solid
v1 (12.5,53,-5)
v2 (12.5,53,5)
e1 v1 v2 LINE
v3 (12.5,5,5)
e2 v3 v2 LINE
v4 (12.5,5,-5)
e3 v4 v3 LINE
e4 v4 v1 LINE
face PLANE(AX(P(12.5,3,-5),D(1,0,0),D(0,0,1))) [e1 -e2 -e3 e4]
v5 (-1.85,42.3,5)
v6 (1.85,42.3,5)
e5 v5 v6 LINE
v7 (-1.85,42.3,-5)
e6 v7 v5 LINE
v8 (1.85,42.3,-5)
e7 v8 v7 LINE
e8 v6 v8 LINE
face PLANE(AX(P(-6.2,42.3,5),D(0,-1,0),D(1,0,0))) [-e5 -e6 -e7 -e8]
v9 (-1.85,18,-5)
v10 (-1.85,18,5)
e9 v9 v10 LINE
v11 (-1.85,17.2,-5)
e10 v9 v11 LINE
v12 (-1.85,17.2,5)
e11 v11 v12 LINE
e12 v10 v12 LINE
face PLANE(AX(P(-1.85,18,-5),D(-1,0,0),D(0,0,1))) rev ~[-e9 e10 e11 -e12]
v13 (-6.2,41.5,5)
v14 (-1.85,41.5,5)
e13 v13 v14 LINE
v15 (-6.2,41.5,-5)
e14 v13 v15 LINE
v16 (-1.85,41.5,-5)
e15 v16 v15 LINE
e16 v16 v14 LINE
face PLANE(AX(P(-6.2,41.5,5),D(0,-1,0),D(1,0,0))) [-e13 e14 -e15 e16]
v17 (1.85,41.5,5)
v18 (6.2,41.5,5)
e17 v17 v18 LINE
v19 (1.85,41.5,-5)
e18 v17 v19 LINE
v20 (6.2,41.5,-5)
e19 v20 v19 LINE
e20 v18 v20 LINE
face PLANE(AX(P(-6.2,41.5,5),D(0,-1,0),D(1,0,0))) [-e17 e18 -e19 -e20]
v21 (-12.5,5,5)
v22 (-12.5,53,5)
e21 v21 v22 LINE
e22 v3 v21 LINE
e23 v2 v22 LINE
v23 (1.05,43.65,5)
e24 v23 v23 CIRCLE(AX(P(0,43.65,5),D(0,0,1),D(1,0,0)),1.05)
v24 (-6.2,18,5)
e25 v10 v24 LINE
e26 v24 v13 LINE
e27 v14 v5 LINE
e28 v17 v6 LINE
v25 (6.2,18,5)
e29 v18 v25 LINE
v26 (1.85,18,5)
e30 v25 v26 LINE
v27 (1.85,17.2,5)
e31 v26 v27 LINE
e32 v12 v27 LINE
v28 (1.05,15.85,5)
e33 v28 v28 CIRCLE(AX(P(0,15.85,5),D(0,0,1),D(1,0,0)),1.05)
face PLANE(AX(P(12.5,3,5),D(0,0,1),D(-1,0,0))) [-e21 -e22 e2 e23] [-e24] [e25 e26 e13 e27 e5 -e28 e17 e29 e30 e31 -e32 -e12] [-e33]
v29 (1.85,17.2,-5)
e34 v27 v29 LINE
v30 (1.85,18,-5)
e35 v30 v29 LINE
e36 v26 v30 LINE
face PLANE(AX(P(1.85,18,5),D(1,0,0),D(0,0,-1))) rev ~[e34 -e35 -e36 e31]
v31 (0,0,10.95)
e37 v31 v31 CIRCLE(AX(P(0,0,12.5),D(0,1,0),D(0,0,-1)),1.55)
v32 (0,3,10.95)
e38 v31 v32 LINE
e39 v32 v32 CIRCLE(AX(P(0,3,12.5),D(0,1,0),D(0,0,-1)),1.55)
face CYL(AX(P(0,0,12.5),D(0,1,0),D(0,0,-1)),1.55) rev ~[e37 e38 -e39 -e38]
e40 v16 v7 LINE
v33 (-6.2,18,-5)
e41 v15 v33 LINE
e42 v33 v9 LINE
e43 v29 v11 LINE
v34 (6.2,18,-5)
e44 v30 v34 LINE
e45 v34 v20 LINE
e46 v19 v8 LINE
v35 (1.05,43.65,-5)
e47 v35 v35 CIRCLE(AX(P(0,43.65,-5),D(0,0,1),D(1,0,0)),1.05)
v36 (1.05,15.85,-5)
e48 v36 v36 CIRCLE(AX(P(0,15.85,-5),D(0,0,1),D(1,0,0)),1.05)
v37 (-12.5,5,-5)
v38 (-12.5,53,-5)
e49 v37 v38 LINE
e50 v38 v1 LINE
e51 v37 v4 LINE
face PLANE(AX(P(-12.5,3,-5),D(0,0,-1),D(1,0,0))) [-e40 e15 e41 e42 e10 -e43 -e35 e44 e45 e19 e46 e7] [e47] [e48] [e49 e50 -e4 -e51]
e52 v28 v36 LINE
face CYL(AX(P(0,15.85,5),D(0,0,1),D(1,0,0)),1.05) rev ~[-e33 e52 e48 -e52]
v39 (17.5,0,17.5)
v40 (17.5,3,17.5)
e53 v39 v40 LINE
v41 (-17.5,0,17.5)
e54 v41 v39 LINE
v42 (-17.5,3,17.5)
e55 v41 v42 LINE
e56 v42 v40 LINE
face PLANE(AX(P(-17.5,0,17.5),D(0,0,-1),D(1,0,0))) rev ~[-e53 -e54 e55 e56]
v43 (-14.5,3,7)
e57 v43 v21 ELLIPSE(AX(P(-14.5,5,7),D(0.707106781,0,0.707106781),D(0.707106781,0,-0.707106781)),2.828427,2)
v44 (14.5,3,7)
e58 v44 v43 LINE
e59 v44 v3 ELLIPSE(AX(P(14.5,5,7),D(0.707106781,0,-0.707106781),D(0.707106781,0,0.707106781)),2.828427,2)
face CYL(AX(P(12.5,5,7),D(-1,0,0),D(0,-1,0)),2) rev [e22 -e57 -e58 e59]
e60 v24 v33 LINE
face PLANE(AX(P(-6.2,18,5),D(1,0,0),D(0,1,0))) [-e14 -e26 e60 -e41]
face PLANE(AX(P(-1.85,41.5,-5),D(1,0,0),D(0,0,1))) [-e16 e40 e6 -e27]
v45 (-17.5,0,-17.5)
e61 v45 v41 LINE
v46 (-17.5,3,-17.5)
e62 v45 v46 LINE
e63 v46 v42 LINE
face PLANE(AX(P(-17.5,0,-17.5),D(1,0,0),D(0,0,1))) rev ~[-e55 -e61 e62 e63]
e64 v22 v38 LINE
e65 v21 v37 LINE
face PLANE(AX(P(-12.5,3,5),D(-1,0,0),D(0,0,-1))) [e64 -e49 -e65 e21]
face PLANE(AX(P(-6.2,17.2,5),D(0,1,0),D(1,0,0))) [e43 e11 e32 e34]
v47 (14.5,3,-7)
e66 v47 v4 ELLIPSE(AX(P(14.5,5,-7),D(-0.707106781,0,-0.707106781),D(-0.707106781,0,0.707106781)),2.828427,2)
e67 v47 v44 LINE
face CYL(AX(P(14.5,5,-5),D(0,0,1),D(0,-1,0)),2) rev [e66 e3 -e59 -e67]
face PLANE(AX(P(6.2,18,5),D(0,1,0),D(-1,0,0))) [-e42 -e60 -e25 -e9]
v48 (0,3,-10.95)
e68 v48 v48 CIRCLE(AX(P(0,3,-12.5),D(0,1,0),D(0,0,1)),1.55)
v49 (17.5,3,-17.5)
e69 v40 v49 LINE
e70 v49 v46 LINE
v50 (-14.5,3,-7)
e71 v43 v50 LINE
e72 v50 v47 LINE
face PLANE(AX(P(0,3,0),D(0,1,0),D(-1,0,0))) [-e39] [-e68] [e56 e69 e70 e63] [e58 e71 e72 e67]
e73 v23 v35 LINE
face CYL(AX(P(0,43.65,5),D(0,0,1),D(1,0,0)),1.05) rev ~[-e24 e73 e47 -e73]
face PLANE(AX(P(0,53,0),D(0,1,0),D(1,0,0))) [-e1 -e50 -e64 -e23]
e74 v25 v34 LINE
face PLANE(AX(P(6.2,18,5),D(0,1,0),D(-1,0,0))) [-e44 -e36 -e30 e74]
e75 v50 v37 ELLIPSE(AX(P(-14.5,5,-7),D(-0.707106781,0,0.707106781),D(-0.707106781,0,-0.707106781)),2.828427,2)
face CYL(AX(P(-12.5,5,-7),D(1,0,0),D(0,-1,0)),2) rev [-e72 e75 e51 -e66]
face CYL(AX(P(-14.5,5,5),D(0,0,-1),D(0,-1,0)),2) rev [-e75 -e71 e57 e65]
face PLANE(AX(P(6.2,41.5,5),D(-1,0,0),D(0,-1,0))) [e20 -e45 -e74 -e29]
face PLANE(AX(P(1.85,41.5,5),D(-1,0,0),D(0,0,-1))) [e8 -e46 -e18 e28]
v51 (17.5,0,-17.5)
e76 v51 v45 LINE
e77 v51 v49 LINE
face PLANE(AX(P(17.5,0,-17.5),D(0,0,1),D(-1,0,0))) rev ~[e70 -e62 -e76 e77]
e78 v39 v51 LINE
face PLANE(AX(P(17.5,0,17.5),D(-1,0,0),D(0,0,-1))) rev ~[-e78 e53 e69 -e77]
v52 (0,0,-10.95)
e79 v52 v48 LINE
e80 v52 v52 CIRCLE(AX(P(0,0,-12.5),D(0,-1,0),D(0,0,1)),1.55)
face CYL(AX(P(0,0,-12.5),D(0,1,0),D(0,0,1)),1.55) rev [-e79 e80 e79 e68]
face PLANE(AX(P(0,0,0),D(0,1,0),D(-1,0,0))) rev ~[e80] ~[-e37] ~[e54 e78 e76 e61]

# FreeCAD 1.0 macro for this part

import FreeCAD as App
import Part
import Sketcher

V = App.Vector


def edges_at(feature, points):
    """Names of the edges that pass closest to the given points."""
    edges = feature.Shape.Edges
    near = lambda p: min(range(len(edges)), key=lambda i: edges[i].distToShape(Part.Vertex(*p))[0])
    return sorted({f"Edge{near(p) + 1}" for p in points})

doc = App.newDocument("Part")
body = doc.addObject("PartDesign::Body", "Body")

# Sketch on XZ plane
sketch1 = body.newObject("Sketcher::SketchObject", "Sketch")
sketch1.AttachmentSupport = (doc.getObject("XZ_Plane"), [""])
sketch1.MapMode = "FlatFace"
sketch1.addGeometry(Part.LineSegment(V(18, 18, 0), V(18, -18, 0)), False)
sketch1.addGeometry(Part.LineSegment(V(18, -18, 0), V(-18, -18, 0)), False)
sketch1.addGeometry(Part.LineSegment(V(-18, -18, 0), V(-18, 18, 0)), False)
sketch1.addGeometry(Part.LineSegment(V(-18, 18, 0), V(18, 18, 0)), False)
sketch1.addConstraint(Sketcher.Constraint("Coincident", 0, 2, 1, 1))
sketch1.addConstraint(Sketcher.Constraint("Coincident", 1, 2, 2, 1))
sketch1.addConstraint(Sketcher.Constraint("Coincident", 2, 2, 3, 1))
sketch1.addConstraint(Sketcher.Constraint("Coincident", 3, 2, 0, 1))
sketch1.addConstraint(Sketcher.Constraint("Vertical", 0))
sketch1.addConstraint(Sketcher.Constraint("Horizontal", 1))
sketch1.addConstraint(Sketcher.Constraint("Vertical", 2))
sketch1.addConstraint(Sketcher.Constraint("Horizontal", 3))
sketch1.addConstraint(Sketcher.Constraint("Symmetric", 0, 2, 2, 2, -1, 1))
sketch1.addConstraint(Sketcher.Constraint("Equal", 3, 0))
sketch1.addConstraint(Sketcher.Constraint("DistanceX", 1, 2, 1, 1, 35.0))
pad1 = body.newObject("PartDesign::Pad", "Pad")
pad1.Profile = sketch1
pad1.Length = 3
pad1.Reversed = True

# Sketch on XZ plane
sketch2 = body.newObject("Sketcher::SketchObject", "Sketch001")
sketch2.AttachmentSupport = (doc.getObject("XZ_Plane"), [""])
sketch2.MapMode = "FlatFace"
sketch2.AttachmentOffset = App.Placement(V(0, 0, -3), App.Rotation())
sketch2.addGeometry(Part.LineSegment(V(12, -5, 0), V(-12, -5, 0)), False)
sketch2.addGeometry(Part.LineSegment(V(-12, -5, 0), V(-12, 5, 0)), False)
sketch2.addGeometry(Part.LineSegment(V(-12, 5, 0), V(12, 5, 0)), False)
sketch2.addGeometry(Part.LineSegment(V(12, 5, 0), V(12, -5, 0)), False)
sketch2.addConstraint(Sketcher.Constraint("Coincident", 0, 2, 1, 1))
sketch2.addConstraint(Sketcher.Constraint("Coincident", 1, 2, 2, 1))
sketch2.addConstraint(Sketcher.Constraint("Coincident", 2, 2, 3, 1))
sketch2.addConstraint(Sketcher.Constraint("Coincident", 3, 2, 0, 1))
sketch2.addConstraint(Sketcher.Constraint("Horizontal", 0))
sketch2.addConstraint(Sketcher.Constraint("Vertical", 1))
sketch2.addConstraint(Sketcher.Constraint("Horizontal", 2))
sketch2.addConstraint(Sketcher.Constraint("Vertical", 3))
sketch2.addConstraint(Sketcher.Constraint("Symmetric", 0, 2, 2, 2, -1, 1))
sketch2.addConstraint(Sketcher.Constraint("DistanceX", 0, 2, 0, 1, 25.0))
sketch2.addConstraint(Sketcher.Constraint("DistanceY", 1, 1, 1, 2, 10.0))
pad2 = body.newObject("PartDesign::Pad", "Pad001")
pad2.Profile = sketch2
pad2.Length = 50
pad2.Reversed = True
doc.recompute()

fillet = body.newObject("PartDesign::Fillet", "Fillet")
fillet.Base = (pad2, edges_at(pad2, [
    (-12.5, 3, 0),
    (12.5, 3, 0),
    (0, 3, 5),
    (0, 3, -5),
]))
fillet.Radius = 2

# Sketch on XY plane
sketch3 = body.newObject("Sketcher::SketchObject", "Sketch002")
sketch3.AttachmentSupport = (doc.getObject("XY_Plane"), [""])
sketch3.MapMode = "FlatFace"
sketch3.AttachmentOffset = App.Placement(V(0, 0, 5), App.Rotation())
sketch3.addGeometry(Part.LineSegment(V(6, 42, 0), V(-6, 42, 0)), False)
sketch3.addGeometry(Part.LineSegment(V(-6, 42, 0), V(-6, 18, 0)), False)
sketch3.addGeometry(Part.LineSegment(V(-6, 18, 0), V(6, 18, 0)), False)
sketch3.addGeometry(Part.LineSegment(V(6, 18, 0), V(6, 42, 0)), False)
sketch3.addConstraint(Sketcher.Constraint("Coincident", 0, 2, 1, 1))
sketch3.addConstraint(Sketcher.Constraint("Coincident", 1, 2, 2, 1))
sketch3.addConstraint(Sketcher.Constraint("Coincident", 2, 2, 3, 1))
sketch3.addConstraint(Sketcher.Constraint("Coincident", 3, 2, 0, 1))
sketch3.addConstraint(Sketcher.Constraint("Horizontal", 0))
sketch3.addConstraint(Sketcher.Constraint("Vertical", 1))
sketch3.addConstraint(Sketcher.Constraint("Horizontal", 2))
sketch3.addConstraint(Sketcher.Constraint("Vertical", 3))
sketch3.addConstraint(Sketcher.Constraint("DistanceX", 0, 2, 0, 1, 12.4))
sketch3.addConstraint(Sketcher.Constraint("DistanceY", 1, 2, 1, 1, 23.5))
sketch3.addConstraint(Sketcher.Constraint("DistanceY", -1, 1, 1, 2, 18.0))
sketch3.addConstraint(Sketcher.Constraint("DistanceX", 0, 2, -1, 1, 6.2))
pocket1 = body.newObject("PartDesign::Pocket", "Pocket")
pocket1.Profile = sketch3
pocket1.Type = "ThroughAll"

# Sketch on XY plane
sketch4 = body.newObject("Sketcher::SketchObject", "Sketch003")
sketch4.AttachmentSupport = (doc.getObject("XY_Plane"), [""])
sketch4.MapMode = "FlatFace"
sketch4.AttachmentOffset = App.Placement(V(0, 0, 5), App.Rotation())
sketch4.addGeometry(Part.Circle(V(0, 43.6, 0), V(0, 0, 1), 1.1), False)
sketch4.addGeometry(Part.Circle(V(0, 15.8, 0), V(0, 0, 1), 1.1), False)
sketch4.addConstraint(Sketcher.Constraint("Equal", 0, 1))
sketch4.addConstraint(Sketcher.Constraint("PointOnObject", 0, 3, -2))
sketch4.addConstraint(Sketcher.Constraint("PointOnObject", 1, 3, -2))
sketch4.addConstraint(Sketcher.Constraint("Diameter", 0, 2.1))
sketch4.addConstraint(Sketcher.Constraint("DistanceY", 1, 3, 0, 3, 27.8))
sketch4.addConstraint(Sketcher.Constraint("DistanceY", -1, 1, 0, 3, 43.65))
pocket2 = body.newObject("PartDesign::Pocket", "Pocket001")
pocket2.Profile = sketch4
pocket2.Length = 10

# Sketch on XZ plane
sketch5 = body.newObject("Sketcher::SketchObject", "Sketch004")
sketch5.AttachmentSupport = (doc.getObject("XZ_Plane"), [""])
sketch5.MapMode = "FlatFace"
sketch5.AttachmentOffset = App.Placement(V(0, 0, -41.5), App.Rotation())
sketch5.addGeometry(Part.LineSegment(V(1.9, -5, 0), V(1.9, 5, 0)), False)
sketch5.addGeometry(Part.LineSegment(V(1.9, 5, 0), V(-1.9, 5, 0)), False)
sketch5.addGeometry(Part.LineSegment(V(-1.9, 5, 0), V(-1.9, -5, 0)), False)
sketch5.addGeometry(Part.LineSegment(V(-1.9, -5, 0), V(1.9, -5, 0)), False)
sketch5.addConstraint(Sketcher.Constraint("Coincident", 0, 2, 1, 1))
sketch5.addConstraint(Sketcher.Constraint("Coincident", 1, 2, 2, 1))
sketch5.addConstraint(Sketcher.Constraint("Coincident", 2, 2, 3, 1))
sketch5.addConstraint(Sketcher.Constraint("Coincident", 3, 2, 0, 1))
sketch5.addConstraint(Sketcher.Constraint("Vertical", 0))
sketch5.addConstraint(Sketcher.Constraint("Horizontal", 1))
sketch5.addConstraint(Sketcher.Constraint("Vertical", 2))
sketch5.addConstraint(Sketcher.Constraint("Horizontal", 3))
sketch5.addConstraint(Sketcher.Constraint("Symmetric", 0, 2, 2, 2, -1, 1))
sketch5.addConstraint(Sketcher.Constraint("DistanceY", 0, 1, 0, 2, 10.0))
sketch5.addConstraint(Sketcher.Constraint("DistanceX", 1, 2, 1, 1, 3.7))
pocket3 = body.newObject("PartDesign::Pocket", "Pocket002")
pocket3.Profile = sketch5
pocket3.Length = 0.8

# Sketch on XZ plane
sketch6 = body.newObject("Sketcher::SketchObject", "Sketch005")
sketch6.AttachmentSupport = (doc.getObject("XZ_Plane"), [""])
sketch6.MapMode = "FlatFace"
sketch6.addGeometry(Part.Circle(V(0, 12.5, 0), V(0, 0, 1), 1.6), False)
sketch6.addConstraint(Sketcher.Constraint("PointOnObject", 0, 3, -2))
sketch6.addConstraint(Sketcher.Constraint("Diameter", 0, 3.1))
sketch6.addConstraint(Sketcher.Constraint("DistanceY", -1, 1, 0, 3, 12.5))
doc.recompute()
hole = body.newObject("PartDesign::Hole", "Hole")
hole.Profile = sketch6
hole.ThreadType = "None"
hole.Diameter = 3.1
hole.DepthType = "ThroughAll"
doc.recompute()

mirrored = body.newObject("PartDesign::Mirrored", "Mirrored")
mirrored.Originals = [hole]
mirrored.MirrorPlane = (doc.getObject("XY_Plane"), [""])
body.Tip = mirrored

# Sketch on XZ plane
sketch7 = body.newObject("Sketcher::SketchObject", "Sketch006")
sketch7.AttachmentSupport = (doc.getObject("XZ_Plane"), [""])
sketch7.MapMode = "FlatFace"
sketch7.AttachmentOffset = App.Placement(V(0, 0, -18), App.Rotation())
sketch7.addGeometry(Part.LineSegment(V(1.9, -5, 0), V(-1.9, -5, 0)), False)
sketch7.addGeometry(Part.LineSegment(V(-1.9, -5, 0), V(-1.9, 5, 0)), False)
sketch7.addGeometry(Part.LineSegment(V(-1.9, 5, 0), V(1.9, 5, 0)), False)
sketch7.addGeometry(Part.LineSegment(V(1.9, 5, 0), V(1.9, -5, 0)), False)
sketch7.addConstraint(Sketcher.Constraint("Coincident", 0, 2, 1, 1))
sketch7.addConstraint(Sketcher.Constraint("Coincident", 1, 2, 2, 1))
sketch7.addConstraint(Sketcher.Constraint("Coincident", 2, 2, 3, 1))
sketch7.addConstraint(Sketcher.Constraint("Coincident", 3, 2, 0, 1))
sketch7.addConstraint(Sketcher.Constraint("Horizontal", 0))
sketch7.addConstraint(Sketcher.Constraint("Vertical", 1))
sketch7.addConstraint(Sketcher.Constraint("Horizontal", 2))
sketch7.addConstraint(Sketcher.Constraint("Vertical", 3))
sketch7.addConstraint(Sketcher.Constraint("Symmetric", 0, 2, 2, 2, -1, 1))
sketch7.addConstraint(Sketcher.Constraint("DistanceY", 1, 1, 1, 2, 10.0))
sketch7.addConstraint(Sketcher.Constraint("DistanceX", 0, 2, 0, 1, 3.7))
pocket4 = body.newObject("PartDesign::Pocket", "Pocket003")
pocket4.Profile = sketch7
pocket4.Length = 0.8
pocket4.Reversed = True

doc.recompute()
